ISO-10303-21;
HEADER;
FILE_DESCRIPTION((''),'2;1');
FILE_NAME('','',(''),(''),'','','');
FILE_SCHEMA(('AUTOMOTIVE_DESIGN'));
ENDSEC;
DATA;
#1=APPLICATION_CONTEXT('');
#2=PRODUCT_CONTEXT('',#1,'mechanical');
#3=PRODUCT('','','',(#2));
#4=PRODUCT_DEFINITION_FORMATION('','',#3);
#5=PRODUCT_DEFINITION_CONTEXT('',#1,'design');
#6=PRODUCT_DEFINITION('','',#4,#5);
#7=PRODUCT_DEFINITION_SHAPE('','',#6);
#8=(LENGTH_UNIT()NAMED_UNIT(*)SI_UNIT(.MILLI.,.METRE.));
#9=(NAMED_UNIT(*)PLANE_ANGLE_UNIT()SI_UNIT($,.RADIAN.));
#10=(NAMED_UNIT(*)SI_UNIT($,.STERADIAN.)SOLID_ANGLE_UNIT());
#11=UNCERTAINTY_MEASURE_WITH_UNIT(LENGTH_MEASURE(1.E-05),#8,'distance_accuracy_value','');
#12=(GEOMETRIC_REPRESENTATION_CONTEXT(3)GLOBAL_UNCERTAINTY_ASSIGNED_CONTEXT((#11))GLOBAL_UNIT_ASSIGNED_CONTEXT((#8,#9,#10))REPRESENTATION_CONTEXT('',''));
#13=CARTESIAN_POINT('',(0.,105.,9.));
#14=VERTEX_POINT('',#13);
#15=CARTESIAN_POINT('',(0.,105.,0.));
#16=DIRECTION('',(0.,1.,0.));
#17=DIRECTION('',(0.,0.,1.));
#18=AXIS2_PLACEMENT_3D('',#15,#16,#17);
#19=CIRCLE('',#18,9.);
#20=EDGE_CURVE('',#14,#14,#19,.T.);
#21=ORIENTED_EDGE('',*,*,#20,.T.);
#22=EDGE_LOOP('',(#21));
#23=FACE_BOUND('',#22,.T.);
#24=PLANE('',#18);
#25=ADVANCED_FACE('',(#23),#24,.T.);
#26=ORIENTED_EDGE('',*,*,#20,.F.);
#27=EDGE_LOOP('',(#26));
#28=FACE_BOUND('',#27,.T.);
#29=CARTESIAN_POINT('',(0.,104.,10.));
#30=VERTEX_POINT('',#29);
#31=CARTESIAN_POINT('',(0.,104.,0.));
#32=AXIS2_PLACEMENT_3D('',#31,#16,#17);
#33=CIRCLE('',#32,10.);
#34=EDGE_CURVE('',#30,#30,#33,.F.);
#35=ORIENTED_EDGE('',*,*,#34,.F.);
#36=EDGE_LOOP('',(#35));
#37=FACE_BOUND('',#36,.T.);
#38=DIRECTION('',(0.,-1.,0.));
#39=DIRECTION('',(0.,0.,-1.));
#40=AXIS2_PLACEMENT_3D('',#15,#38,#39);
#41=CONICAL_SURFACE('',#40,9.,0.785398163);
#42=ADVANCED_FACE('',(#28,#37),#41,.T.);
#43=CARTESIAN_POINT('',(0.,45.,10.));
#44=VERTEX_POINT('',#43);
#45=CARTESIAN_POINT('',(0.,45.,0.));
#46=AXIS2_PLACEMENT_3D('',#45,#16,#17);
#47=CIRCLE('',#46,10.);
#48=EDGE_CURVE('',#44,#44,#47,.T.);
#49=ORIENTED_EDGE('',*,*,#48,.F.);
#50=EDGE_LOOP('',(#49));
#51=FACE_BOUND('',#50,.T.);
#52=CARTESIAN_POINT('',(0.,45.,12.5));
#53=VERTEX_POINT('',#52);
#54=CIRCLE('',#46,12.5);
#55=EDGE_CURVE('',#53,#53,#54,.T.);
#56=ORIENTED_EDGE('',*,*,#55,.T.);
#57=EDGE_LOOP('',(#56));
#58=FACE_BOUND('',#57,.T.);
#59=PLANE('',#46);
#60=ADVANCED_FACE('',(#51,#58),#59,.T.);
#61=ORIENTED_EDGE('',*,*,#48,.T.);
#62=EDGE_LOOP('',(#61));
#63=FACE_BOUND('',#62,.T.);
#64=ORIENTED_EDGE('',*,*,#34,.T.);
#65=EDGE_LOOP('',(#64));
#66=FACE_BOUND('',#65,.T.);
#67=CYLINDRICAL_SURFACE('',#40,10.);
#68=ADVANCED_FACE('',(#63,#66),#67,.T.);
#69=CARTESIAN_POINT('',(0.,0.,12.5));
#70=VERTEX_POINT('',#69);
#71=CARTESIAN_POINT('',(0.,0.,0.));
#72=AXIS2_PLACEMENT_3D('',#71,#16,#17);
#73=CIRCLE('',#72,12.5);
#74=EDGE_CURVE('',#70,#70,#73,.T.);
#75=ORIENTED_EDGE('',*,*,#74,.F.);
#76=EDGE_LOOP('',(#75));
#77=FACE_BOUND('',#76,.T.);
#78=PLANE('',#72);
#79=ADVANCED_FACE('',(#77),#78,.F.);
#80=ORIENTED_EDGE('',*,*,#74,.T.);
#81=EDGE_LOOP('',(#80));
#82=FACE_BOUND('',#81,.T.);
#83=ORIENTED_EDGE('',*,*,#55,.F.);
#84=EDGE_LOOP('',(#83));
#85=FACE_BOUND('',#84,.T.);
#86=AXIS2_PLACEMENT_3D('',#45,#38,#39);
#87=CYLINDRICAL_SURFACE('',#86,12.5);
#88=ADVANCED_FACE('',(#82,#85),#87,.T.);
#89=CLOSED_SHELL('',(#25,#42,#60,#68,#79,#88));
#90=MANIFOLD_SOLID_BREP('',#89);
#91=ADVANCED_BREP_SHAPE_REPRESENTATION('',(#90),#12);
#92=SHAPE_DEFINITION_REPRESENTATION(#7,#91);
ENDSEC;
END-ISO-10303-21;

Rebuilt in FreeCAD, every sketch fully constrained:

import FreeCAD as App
import Part
import Sketcher
from FreeCAD import Vector
Q = App.Units.Quantity


def edges_at(feature, points):
    """Names of the edges that pass closest to the given points."""
    edges = feature.Shape.Edges
    near = lambda p: min(range(len(edges)), key=lambda i: edges[i].distToShape(Part.Vertex(*p))[0])
    return sorted({f"Edge{near(p) + 1}" for p in points})

doc = App.newDocument("Part")
body = doc.addObject("PartDesign::Body", "Body")

# Sketch on XZ plane
sketch1 = body.newObject("Sketcher::SketchObject", "Sketch")
sketch1.AttachmentSupport = (doc.getObject("XZ_Plane"), [""])
sketch1.MapMode = "FlatFace"
sketch1.addGeometry(Part.Circle(Vector(0, 0, 0), Vector(0, 0, 1), 12), False)
sketch1.addConstraint(Sketcher.Constraint("Coincident", 0, 3, -1, 1))
sketch1.addConstraint(Sketcher.Constraint("Diameter", 0, Q("25 mm")))
pad1 = body.newObject("PartDesign::Pad", "Pad")
pad1.Profile = sketch1
pad1.Length = 45
pad1.Reversed = True

# Sketch on XZ plane
sketch2 = body.newObject("Sketcher::SketchObject", "Sketch001")
sketch2.AttachmentSupport = (doc.getObject("XZ_Plane"), [""])
sketch2.MapMode = "FlatFace"
sketch2.AttachmentOffset = App.Placement(Vector(0, 0, -45), App.Rotation())
sketch2.addGeometry(Part.Circle(Vector(0, 0, 0), Vector(0, 0, 1), 10), False)
sketch2.addConstraint(Sketcher.Constraint("Coincident", 0, 3, -1, 1))
sketch2.addConstraint(Sketcher.Constraint("Diameter", 0, Q("20 mm")))
pad2 = body.newObject("PartDesign::Pad", "Pad001")
pad2.Profile = sketch2
pad2.Length = 60
pad2.Reversed = True
doc.recompute()

chamfer = body.newObject("PartDesign::Chamfer", "Chamfer")
chamfer.Base = (pad2, edges_at(pad2, [(-10, 105, 0)]))
chamfer.Size = 1

doc.recompute()
